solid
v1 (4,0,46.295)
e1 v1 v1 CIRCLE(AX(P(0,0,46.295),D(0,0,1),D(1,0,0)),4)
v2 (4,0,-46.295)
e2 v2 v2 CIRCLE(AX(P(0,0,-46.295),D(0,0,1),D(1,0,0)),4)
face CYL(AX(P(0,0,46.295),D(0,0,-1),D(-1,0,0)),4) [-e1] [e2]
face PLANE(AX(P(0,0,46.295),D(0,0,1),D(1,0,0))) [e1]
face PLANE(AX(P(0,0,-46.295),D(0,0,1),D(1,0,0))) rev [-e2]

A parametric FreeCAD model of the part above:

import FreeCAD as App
import Part
import Sketcher

V = App.Vector

doc = App.newDocument("Part")
body = doc.addObject("PartDesign::Body", "Body")

# Sketch on XY plane
sketch1 = doc.addObject("Sketcher::SketchObject", "Sketch")
body.addObject(sketch1)
sketch1.AttachmentSupport = (doc.XY_Plane, [""])
sketch1.MapMode = "FlatFace"
sketch1.addGeometry(Part.Circle(V(0, 0, 0), V(0, 0, 1), 4), False)
sketch1.addConstraint([
    Sketcher.Constraint("Coincident", 0, 3, -1, 1),
    Sketcher.Constraint("Diameter", 0, 8.0),
])
pad1 = doc.addObject("PartDesign::Pad", "Pad")
body.addObject(pad1)
pad1.Profile = sketch1
pad1.Length = 92.59
pad1.Midplane = True

doc.recompute()
